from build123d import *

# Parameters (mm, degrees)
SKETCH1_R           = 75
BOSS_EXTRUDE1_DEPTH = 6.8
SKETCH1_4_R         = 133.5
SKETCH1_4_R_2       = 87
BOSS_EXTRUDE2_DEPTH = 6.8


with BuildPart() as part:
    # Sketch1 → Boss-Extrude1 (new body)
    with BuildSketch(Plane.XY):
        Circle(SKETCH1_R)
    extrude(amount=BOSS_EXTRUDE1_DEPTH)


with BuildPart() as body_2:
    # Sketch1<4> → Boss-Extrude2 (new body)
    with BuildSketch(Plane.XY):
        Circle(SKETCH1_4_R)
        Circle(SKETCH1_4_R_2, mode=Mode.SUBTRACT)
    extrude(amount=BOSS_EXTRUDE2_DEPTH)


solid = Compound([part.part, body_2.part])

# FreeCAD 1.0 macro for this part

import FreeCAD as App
import Part
import Sketcher
Q = App.Units.Quantity

doc = App.newDocument("Part")
params = doc.addObject("Spreadsheet::Sheet", "Params")
for row, (alias, value) in enumerate([
    ("sketch1_diameter", "150 mm"),
    ("pad1_length", "6.8 mm"),
    ("sketch2_diameter", "267 mm"),
    ("sketch2_diameter2", "174 mm"),
    ("pad2_length", "6.8 mm"),
], start=1):
    params.set(f"A{row}", alias)
    params.set(f"B{row}", "=" + value)
    params.setAlias(f"B{row}", alias)

body = doc.addObject("PartDesign::Body", "Body")

# Sketch on XY plane
sketch1 = body.newObject("Sketcher::SketchObject", "Sketch")
sketch1.AttachmentSupport = (doc.getObject("XY_Plane"), [""])
sketch1.MapMode = "FlatFace"
sketch1.addGeometry(Part.Circle(App.Vector(0, 0, 0), App.Vector(0, 0, 1), 75), False)
sketch1.addConstraint(Sketcher.Constraint("Coincident", 0, 3, -1, 1))
sketch1.addConstraint(Sketcher.Constraint("Diameter", 0, Q("150 mm")))
sketch1.setExpression("Constraints[1]", "Params.sketch1_diameter")
pad1 = body.newObject("PartDesign::Pad", "Pad")
pad1.Profile = sketch1
pad1.setExpression("Length", "Params.pad1_length")
body2 = doc.addObject("PartDesign::Body", "Body001")

# Sketch on XY plane
sketch2 = body2.newObject("Sketcher::SketchObject", "Sketch001")
sketch2.AttachmentSupport = (doc.getObject("XY_Plane001"), [""])
sketch2.MapMode = "FlatFace"
sketch2.addGeometry(Part.Circle(App.Vector(0, 0, 0), App.Vector(0, 0, 1), 133.5), False)
sketch2.addGeometry(Part.Circle(App.Vector(0, 0, 0), App.Vector(0, 0, 1), 87), False)
sketch2.addConstraint(Sketcher.Constraint("Coincident", 0, 3, -1, 1))
sketch2.addConstraint(Sketcher.Constraint("Coincident", 1, 3, -1, 1))
sketch2.addConstraint(Sketcher.Constraint("Diameter", 0, Q("267 mm")))
sketch2.addConstraint(Sketcher.Constraint("Diameter", 1, Q("174 mm")))
sketch2.setExpression("Constraints[2]", "Params.sketch2_diameter")
sketch2.setExpression("Constraints[3]", "Params.sketch2_diameter2")
pad2 = body2.newObject("PartDesign::Pad", "Pad001")
pad2.Profile = sketch2
pad2.setExpression("Length", "Params.pad2_length")

doc.recompute()
